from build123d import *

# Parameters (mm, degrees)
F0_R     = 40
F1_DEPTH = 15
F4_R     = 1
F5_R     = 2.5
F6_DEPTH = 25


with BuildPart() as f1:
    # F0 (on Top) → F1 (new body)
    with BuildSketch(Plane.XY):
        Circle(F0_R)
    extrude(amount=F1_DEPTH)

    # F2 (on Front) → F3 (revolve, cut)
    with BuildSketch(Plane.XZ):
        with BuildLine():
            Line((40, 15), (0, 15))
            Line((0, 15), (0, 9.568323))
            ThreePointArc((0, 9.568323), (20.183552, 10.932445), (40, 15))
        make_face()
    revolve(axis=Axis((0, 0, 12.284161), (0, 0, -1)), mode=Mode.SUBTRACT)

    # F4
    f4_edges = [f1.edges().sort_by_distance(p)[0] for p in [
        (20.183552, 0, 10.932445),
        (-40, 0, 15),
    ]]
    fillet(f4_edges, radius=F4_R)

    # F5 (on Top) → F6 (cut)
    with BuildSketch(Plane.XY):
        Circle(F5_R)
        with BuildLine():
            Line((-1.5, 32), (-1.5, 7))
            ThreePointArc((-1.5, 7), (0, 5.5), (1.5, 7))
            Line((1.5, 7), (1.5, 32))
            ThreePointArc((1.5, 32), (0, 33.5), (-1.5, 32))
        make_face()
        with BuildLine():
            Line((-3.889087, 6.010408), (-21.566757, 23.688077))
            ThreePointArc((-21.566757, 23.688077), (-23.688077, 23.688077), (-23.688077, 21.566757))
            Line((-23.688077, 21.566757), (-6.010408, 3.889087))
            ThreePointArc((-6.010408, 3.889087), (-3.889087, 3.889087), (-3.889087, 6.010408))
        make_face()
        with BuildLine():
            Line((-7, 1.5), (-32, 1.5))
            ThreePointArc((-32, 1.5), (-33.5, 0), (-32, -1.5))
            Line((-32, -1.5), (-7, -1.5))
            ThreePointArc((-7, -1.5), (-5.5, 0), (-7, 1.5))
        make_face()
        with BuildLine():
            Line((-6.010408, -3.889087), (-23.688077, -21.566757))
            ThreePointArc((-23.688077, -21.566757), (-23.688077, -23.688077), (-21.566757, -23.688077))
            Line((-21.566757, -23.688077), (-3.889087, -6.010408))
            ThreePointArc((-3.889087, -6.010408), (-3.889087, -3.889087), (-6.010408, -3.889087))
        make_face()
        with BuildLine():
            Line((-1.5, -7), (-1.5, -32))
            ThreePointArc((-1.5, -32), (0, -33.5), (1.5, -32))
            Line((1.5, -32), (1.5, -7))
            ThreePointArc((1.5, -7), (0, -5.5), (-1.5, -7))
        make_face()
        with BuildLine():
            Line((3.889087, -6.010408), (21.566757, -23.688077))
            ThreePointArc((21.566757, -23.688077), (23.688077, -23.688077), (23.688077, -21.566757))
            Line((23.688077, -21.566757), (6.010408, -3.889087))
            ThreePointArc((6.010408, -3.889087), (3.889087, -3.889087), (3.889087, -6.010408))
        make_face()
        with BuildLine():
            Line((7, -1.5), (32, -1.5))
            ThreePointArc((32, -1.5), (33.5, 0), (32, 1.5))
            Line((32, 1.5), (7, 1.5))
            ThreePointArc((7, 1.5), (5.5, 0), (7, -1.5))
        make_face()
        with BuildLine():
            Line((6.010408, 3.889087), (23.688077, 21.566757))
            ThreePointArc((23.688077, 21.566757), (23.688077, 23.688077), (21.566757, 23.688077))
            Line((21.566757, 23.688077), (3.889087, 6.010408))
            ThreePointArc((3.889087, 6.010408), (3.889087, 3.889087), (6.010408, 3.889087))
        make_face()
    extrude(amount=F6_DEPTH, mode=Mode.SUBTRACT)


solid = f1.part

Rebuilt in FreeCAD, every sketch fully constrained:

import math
import FreeCAD as App
import Part
import Sketcher
from FreeCAD import Vector
Q = App.Units.Quantity


def edges_at(feature, points):
    """Names of the edges that pass closest to the given points."""
    edges = feature.Shape.Edges
    near = lambda p: min(range(len(edges)), key=lambda i: edges[i].distToShape(Part.Vertex(*p))[0])
    return sorted({f"Edge{near(p) + 1}" for p in points})

doc = App.newDocument("Part")
params = doc.addObject("Spreadsheet::Sheet", "Params")
for row, (alias, value) in enumerate([
    ("sketch1_diameter", "80 mm"),
    ("pad1_length", "15 mm"),
    ("sketch2_width", "40 mm"),
    ("groove_angle", "360 deg"),
    ("fillet_radius", "1 mm"),
    ("sketch3_diameter", "5 mm"),
    ("sketch3_radius", "1.5 mm"),
    ("sketch3_width", "25 mm"),
    ("sketch3_length", "25 mm"),
    ("pocket1_length", "25 mm"),
], start=1):
    params.set(f"A{row}", alias)
    params.set(f"B{row}", "=" + value)
    params.setAlias(f"B{row}", alias)

body = doc.addObject("PartDesign::Body", "Body")

sketch1 = doc.addObject("Sketcher::SketchObject", "Sketch")
body.addObject(sketch1)
sketch1.AttachmentSupport = (doc.XY_Plane, [""])
sketch1.MapMode = "FlatFace"
sketch1.addGeometry(Part.Circle(Vector(0, 0, 0), Vector(0, 0, 1), 40), False)
sketch1.addConstraint(Sketcher.Constraint("Coincident", 0, 3, -1, 1))
sketch1.addConstraint(Sketcher.Constraint("Diameter", 0, Q("80 mm")))
sketch1.setExpression("Constraints[1]", "Params.sketch1_diameter")
pad1 = doc.addObject("PartDesign::Pad", "Pad")
body.addObject(pad1)
pad1.Profile = sketch1
pad1.setExpression("Length", "Params.pad1_length")

sketch2 = doc.addObject("Sketcher::SketchObject", "Sketch001")
body.addObject(sketch2)
sketch2.AttachmentSupport = (doc.XZ_Plane, [""])
sketch2.MapMode = "FlatFace"
sketch2.addGeometry(Part.LineSegment(Vector(40, 15, 0), Vector(0, 15, 0)), False)
sketch2.addGeometry(Part.LineSegment(Vector(0, 15, 0), Vector(0, 10, 0)), False)
sketch2.addGeometry(Part.ArcOfCircle(Part.Circle(Vector(0, 160, 0), Vector(0, 0, 1), 150), math.radians(-90), math.radians(-74.53)), False)
sketch2.addConstraint(Sketcher.Constraint("Coincident", 0, 2, 1, 1))
sketch2.addConstraint(Sketcher.Constraint("Coincident", 1, 2, 2, 1))
sketch2.addConstraint(Sketcher.Constraint("Coincident", 2, 2, 0, 1))
sketch2.addConstraint(Sketcher.Constraint("Horizontal", 0))
sketch2.addConstraint(Sketcher.Constraint("Vertical", 1))
sketch2.addConstraint(Sketcher.Constraint("PointOnObject", 2, 3, -2))
sketch2.addConstraint(Sketcher.Constraint("PointOnObject", 0, 2, -2))
sketch2.addConstraint(Sketcher.Constraint("DistanceX", 0, 2, 0, 1, Q("40 mm")))
sketch2.addConstraint(Sketcher.Constraint("DistanceY", -1, 1, 0, 2, Q("15 mm")))
sketch2.addConstraint(Sketcher.Constraint("Radius", 2, Q("150.000003 mm")))
sketch2.setExpression("Constraints[7]", "Params.sketch2_width")
groove = doc.addObject("PartDesign::Groove", "Groove")
body.addObject(groove)
groove.Profile = sketch2
groove.ReferenceAxis = (sketch2, ["V_Axis"])
groove.setExpression("Angle", "Params.groove_angle")
doc.recompute()

fillet = doc.addObject("PartDesign::Fillet", "Fillet")
body.addObject(fillet)
fillet.Base = (groove, edges_at(groove, [(20.184, 0, 10.932), (-40, 0, 15)]))
fillet.setExpression("Radius", "Params.fillet_radius")

sketch3 = doc.addObject("Sketcher::SketchObject", "Sketch002")
body.addObject(sketch3)
sketch3.AttachmentSupport = (doc.XY_Plane, [""])
sketch3.MapMode = "FlatFace"
sketch3.addGeometry(Part.Circle(Vector(0, 0, 0), Vector(0, 0, 1), 2.5), False)
sketch3.addGeometry(Part.LineSegment(Vector(-1.5, 32, 0), Vector(-1.5, 7, 0)), False)
sketch3.addGeometry(Part.ArcOfCircle(Part.Circle(Vector(0, 7, 0), Vector(0, 0, 1), 1.5), math.radians(180), math.radians(360)), False)
sketch3.addGeometry(Part.LineSegment(Vector(1.5, 7, 0), Vector(1.5, 32, 0)), False)
sketch3.addGeometry(Part.ArcOfCircle(Part.Circle(Vector(0, 32, 0), Vector(0, 0, 1), 1.5), math.radians(0), math.radians(180)), False)
sketch3.addGeometry(Part.LineSegment(Vector(-3.9, 6, 0), Vector(-21.6, 23.7, 0)), False)
sketch3.addGeometry(Part.ArcOfCircle(Part.Circle(Vector(-22.6, 22.6, 0), Vector(0, 0, 1), 1.5), math.radians(45), math.radians(225)), False)
sketch3.addGeometry(Part.LineSegment(Vector(-23.7, 21.6, 0), Vector(-6, 3.9, 0)), False)
sketch3.addGeometry(Part.ArcOfCircle(Part.Circle(Vector(-4.9, 4.9, 0), Vector(0, 0, 1), 1.5), math.radians(-135), math.radians(45)), False)
sketch3.addGeometry(Part.LineSegment(Vector(-7, 1.5, 0), Vector(-32, 1.5, 0)), False)
sketch3.addGeometry(Part.ArcOfCircle(Part.Circle(Vector(-32, 0, 0), Vector(0, 0, 1), 1.5), math.radians(90), math.radians(270)), False)
sketch3.addGeometry(Part.LineSegment(Vector(-32, -1.5, 0), Vector(-7, -1.5, 0)), False)
sketch3.addGeometry(Part.ArcOfCircle(Part.Circle(Vector(-7, 0, 0), Vector(0, 0, 1), 1.5), math.radians(-90), math.radians(90)), False)
sketch3.addGeometry(Part.LineSegment(Vector(-6, -3.9, 0), Vector(-23.7, -21.6, 0)), False)
sketch3.addGeometry(Part.ArcOfCircle(Part.Circle(Vector(-22.6, -22.6, 0), Vector(0, 0, 1), 1.5), math.radians(135), math.radians(315)), False)
sketch3.addGeometry(Part.LineSegment(Vector(-21.6, -23.7, 0), Vector(-3.9, -6, 0)), False)
sketch3.addGeometry(Part.ArcOfCircle(Part.Circle(Vector(-4.9, -4.9, 0), Vector(0, 0, 1), 1.5), math.radians(-45), math.radians(135)), False)
sketch3.addGeometry(Part.LineSegment(Vector(-1.5, -7, 0), Vector(-1.5, -32, 0)), False)
sketch3.addGeometry(Part.ArcOfCircle(Part.Circle(Vector(0, -32, 0), Vector(0, 0, 1), 1.5), math.radians(180), math.radians(360)), False)
sketch3.addGeometry(Part.LineSegment(Vector(1.5, -32, 0), Vector(1.5, -7, 0)), False)
sketch3.addGeometry(Part.ArcOfCircle(Part.Circle(Vector(0, -7, 0), Vector(0, 0, 1), 1.5), math.radians(0), math.radians(180)), False)
sketch3.addGeometry(Part.LineSegment(Vector(3.9, -6, 0), Vector(21.6, -23.7, 0)), False)
sketch3.addGeometry(Part.ArcOfCircle(Part.Circle(Vector(22.6, -22.6, 0), Vector(0, 0, 1), 1.5), math.radians(-135), math.radians(45)), False)
sketch3.addGeometry(Part.LineSegment(Vector(23.7, -21.6, 0), Vector(6, -3.9, 0)), False)
sketch3.addGeometry(Part.ArcOfCircle(Part.Circle(Vector(4.9, -4.9, 0), Vector(0, 0, 1), 1.5), math.radians(45), math.radians(225)), False)
sketch3.addGeometry(Part.LineSegment(Vector(7, -1.5, 0), Vector(32, -1.5, 0)), False)
sketch3.addGeometry(Part.ArcOfCircle(Part.Circle(Vector(32, 0, 0), Vector(0, 0, 1), 1.5), math.radians(-90), math.radians(90)), False)
sketch3.addGeometry(Part.LineSegment(Vector(32, 1.5, 0), Vector(7, 1.5, 0)), False)
sketch3.addGeometry(Part.ArcOfCircle(Part.Circle(Vector(7, 0, 0), Vector(0, 0, 1), 1.5), math.radians(90), math.radians(270)), False)
sketch3.addGeometry(Part.LineSegment(Vector(6, 3.9, 0), Vector(23.7, 21.6, 0)), False)
sketch3.addGeometry(Part.ArcOfCircle(Part.Circle(Vector(22.6, 22.6, 0), Vector(0, 0, 1), 1.5), math.radians(-45), math.radians(135)), False)
sketch3.addGeometry(Part.LineSegment(Vector(21.6, 23.7, 0), Vector(3.9, 6, 0)), False)
sketch3.addGeometry(Part.ArcOfCircle(Part.Circle(Vector(4.9, 4.9, 0), Vector(0, 0, 1), 1.5), math.radians(135), math.radians(315)), False)
sketch3.addConstraint(Sketcher.Constraint("Tangent", 1, 2, 2, 1))
sketch3.addConstraint(Sketcher.Constraint("Tangent", 2, 2, 3, 1))
sketch3.addConstraint(Sketcher.Constraint("Tangent", 3, 2, 4, 1))
sketch3.addConstraint(Sketcher.Constraint("Tangent", 4, 2, 1, 1))
sketch3.addConstraint(Sketcher.Constraint("Tangent", 5, 2, 6, 1))
sketch3.addConstraint(Sketcher.Constraint("Tangent", 6, 2, 7, 1))
sketch3.addConstraint(Sketcher.Constraint("Tangent", 7, 2, 8, 1))
sketch3.addConstraint(Sketcher.Constraint("Tangent", 8, 2, 5, 1))
sketch3.addConstraint(Sketcher.Constraint("Tangent", 9, 2, 10, 1))
sketch3.addConstraint(Sketcher.Constraint("Tangent", 10, 2, 11, 1))
sketch3.addConstraint(Sketcher.Constraint("Tangent", 11, 2, 12, 1))
sketch3.addConstraint(Sketcher.Constraint("Tangent", 12, 2, 9, 1))
sketch3.addConstraint(Sketcher.Constraint("Tangent", 13, 2, 14, 1))
sketch3.addConstraint(Sketcher.Constraint("Tangent", 14, 2, 15, 1))
sketch3.addConstraint(Sketcher.Constraint("Tangent", 15, 2, 16, 1))
sketch3.addConstraint(Sketcher.Constraint("Tangent", 16, 2, 13, 1))
sketch3.addConstraint(Sketcher.Constraint("Tangent", 17, 2, 18, 1))
sketch3.addConstraint(Sketcher.Constraint("Tangent", 18, 2, 19, 1))
sketch3.addConstraint(Sketcher.Constraint("Tangent", 19, 2, 20, 1))
sketch3.addConstraint(Sketcher.Constraint("Tangent", 20, 2, 17, 1))
sketch3.addConstraint(Sketcher.Constraint("Tangent", 21, 2, 22, 1))
sketch3.addConstraint(Sketcher.Constraint("Tangent", 22, 2, 23, 1))
sketch3.addConstraint(Sketcher.Constraint("Tangent", 23, 2, 24, 1))
sketch3.addConstraint(Sketcher.Constraint("Tangent", 24, 2, 21, 1))
sketch3.addConstraint(Sketcher.Constraint("Tangent", 25, 2, 26, 1))
sketch3.addConstraint(Sketcher.Constraint("Tangent", 26, 2, 27, 1))
sketch3.addConstraint(Sketcher.Constraint("Tangent", 27, 2, 28, 1))
sketch3.addConstraint(Sketcher.Constraint("Tangent", 28, 2, 25, 1))
sketch3.addConstraint(Sketcher.Constraint("Tangent", 29, 2, 30, 1))
sketch3.addConstraint(Sketcher.Constraint("Tangent", 30, 2, 31, 1))
sketch3.addConstraint(Sketcher.Constraint("Tangent", 31, 2, 32, 1))
sketch3.addConstraint(Sketcher.Constraint("Tangent", 32, 2, 29, 1))
sketch3.addConstraint(Sketcher.Constraint("Vertical", 1))
sketch3.addConstraint(Sketcher.Constraint("Vertical", 3))
sketch3.addConstraint(Sketcher.Constraint("Horizontal", 9))
sketch3.addConstraint(Sketcher.Constraint("Horizontal", 11))
sketch3.addConstraint(Sketcher.Constraint("Vertical", 17))
sketch3.addConstraint(Sketcher.Constraint("Vertical", 19))
sketch3.addConstraint(Sketcher.Constraint("Horizontal", 25))
sketch3.addConstraint(Sketcher.Constraint("Horizontal", 27))
sketch3.addConstraint(Sketcher.Constraint("Coincident", 0, 3, -1, 1))
sketch3.addConstraint(Sketcher.Constraint("Equal", 4, 6))
sketch3.addConstraint(Sketcher.Constraint("Equal", 6, 8))
sketch3.addConstraint(Sketcher.Constraint("Equal", 8, 10))
sketch3.addConstraint(Sketcher.Constraint("Equal", 12, 14))
sketch3.addConstraint(Sketcher.Constraint("Equal", 14, 16))
sketch3.addConstraint(Sketcher.Constraint("Equal", 16, 18))
sketch3.addConstraint(Sketcher.Constraint("Equal", 20, 22))
sketch3.addConstraint(Sketcher.Constraint("Equal", 22, 24))
sketch3.addConstraint(Sketcher.Constraint("Equal", 24, 26))
sketch3.addConstraint(Sketcher.Constraint("Equal", 28, 30))
sketch3.addConstraint(Sketcher.Constraint("Equal", 30, 32))
sketch3.addConstraint(Sketcher.Constraint("Symmetric", 4, 3, 18, 3, -1, 1))
sketch3.addConstraint(Sketcher.Constraint("Symmetric", 6, 3, 22, 3, -1, 1))
sketch3.addConstraint(Sketcher.Constraint("Symmetric", 8, 3, 24, 3, -1, 1))
sketch3.addConstraint(Sketcher.Constraint("Symmetric", 10, 3, 26, 3, -1, 1))
sketch3.addConstraint(Sketcher.Constraint("Symmetric", 14, 3, 30, 3, -1, 1))
sketch3.addConstraint(Sketcher.Constraint("Symmetric", 16, 3, 32, 3, -1, 1))
sketch3.addConstraint(Sketcher.Constraint("Symmetric", 14, 3, 22, 3, -2))
sketch3.addConstraint(Sketcher.Constraint("Symmetric", 16, 3, 24, 3, -2))
sketch3.addConstraint(Sketcher.Constraint("Symmetric", 12, 3, 28, 3, -2))
sketch3.addConstraint(Sketcher.Constraint("Symmetric", 2, 3, 20, 3, -1))
sketch3.addConstraint(Sketcher.Constraint("Perpendicular", 7, 13))
sketch3.addConstraint(Sketcher.Constraint("Equal", 27, 1))
sketch3.addConstraint(Sketcher.Constraint("Diameter", 0, Q("5 mm")))
sketch3.addConstraint(Sketcher.Constraint("Radius", 2, Q("1.5 mm")))
sketch3.addConstraint(Sketcher.Constraint("DistanceX", 9, 2, 9, 1, Q("25 mm")))
sketch3.addConstraint(Sketcher.Constraint("Distance", 5, Q("25 mm")))
sketch3.addConstraint(Sketcher.Constraint("DistanceY", -1, 1, 2, 3, Q("7 mm")))
sketch3.addConstraint(Sketcher.Constraint("DistanceX", 10, 3, -1, 1, Q("32 mm")))
sketch3.addConstraint(Sketcher.Constraint("DistanceX", 6, 3, -1, 1, Q("22.627417 mm")))
sketch3.addConstraint(Sketcher.Constraint("DistanceY", -1, 1, 6, 3, Q("22.627417 mm")))
sketch3.setExpression("Constraints[64]", "Params.sketch3_diameter")
sketch3.setExpression("Constraints[65]", "Params.sketch3_radius")
sketch3.setExpression("Constraints[66]", "Params.sketch3_width")
sketch3.setExpression("Constraints[67]", "Params.sketch3_length")
pocket1 = doc.addObject("PartDesign::Pocket", "Pocket")
body.addObject(pocket1)
pocket1.Profile = sketch3
pocket1.setExpression("Length", "Params.pocket1_length")
pocket1.Reversed = True

doc.recompute()
